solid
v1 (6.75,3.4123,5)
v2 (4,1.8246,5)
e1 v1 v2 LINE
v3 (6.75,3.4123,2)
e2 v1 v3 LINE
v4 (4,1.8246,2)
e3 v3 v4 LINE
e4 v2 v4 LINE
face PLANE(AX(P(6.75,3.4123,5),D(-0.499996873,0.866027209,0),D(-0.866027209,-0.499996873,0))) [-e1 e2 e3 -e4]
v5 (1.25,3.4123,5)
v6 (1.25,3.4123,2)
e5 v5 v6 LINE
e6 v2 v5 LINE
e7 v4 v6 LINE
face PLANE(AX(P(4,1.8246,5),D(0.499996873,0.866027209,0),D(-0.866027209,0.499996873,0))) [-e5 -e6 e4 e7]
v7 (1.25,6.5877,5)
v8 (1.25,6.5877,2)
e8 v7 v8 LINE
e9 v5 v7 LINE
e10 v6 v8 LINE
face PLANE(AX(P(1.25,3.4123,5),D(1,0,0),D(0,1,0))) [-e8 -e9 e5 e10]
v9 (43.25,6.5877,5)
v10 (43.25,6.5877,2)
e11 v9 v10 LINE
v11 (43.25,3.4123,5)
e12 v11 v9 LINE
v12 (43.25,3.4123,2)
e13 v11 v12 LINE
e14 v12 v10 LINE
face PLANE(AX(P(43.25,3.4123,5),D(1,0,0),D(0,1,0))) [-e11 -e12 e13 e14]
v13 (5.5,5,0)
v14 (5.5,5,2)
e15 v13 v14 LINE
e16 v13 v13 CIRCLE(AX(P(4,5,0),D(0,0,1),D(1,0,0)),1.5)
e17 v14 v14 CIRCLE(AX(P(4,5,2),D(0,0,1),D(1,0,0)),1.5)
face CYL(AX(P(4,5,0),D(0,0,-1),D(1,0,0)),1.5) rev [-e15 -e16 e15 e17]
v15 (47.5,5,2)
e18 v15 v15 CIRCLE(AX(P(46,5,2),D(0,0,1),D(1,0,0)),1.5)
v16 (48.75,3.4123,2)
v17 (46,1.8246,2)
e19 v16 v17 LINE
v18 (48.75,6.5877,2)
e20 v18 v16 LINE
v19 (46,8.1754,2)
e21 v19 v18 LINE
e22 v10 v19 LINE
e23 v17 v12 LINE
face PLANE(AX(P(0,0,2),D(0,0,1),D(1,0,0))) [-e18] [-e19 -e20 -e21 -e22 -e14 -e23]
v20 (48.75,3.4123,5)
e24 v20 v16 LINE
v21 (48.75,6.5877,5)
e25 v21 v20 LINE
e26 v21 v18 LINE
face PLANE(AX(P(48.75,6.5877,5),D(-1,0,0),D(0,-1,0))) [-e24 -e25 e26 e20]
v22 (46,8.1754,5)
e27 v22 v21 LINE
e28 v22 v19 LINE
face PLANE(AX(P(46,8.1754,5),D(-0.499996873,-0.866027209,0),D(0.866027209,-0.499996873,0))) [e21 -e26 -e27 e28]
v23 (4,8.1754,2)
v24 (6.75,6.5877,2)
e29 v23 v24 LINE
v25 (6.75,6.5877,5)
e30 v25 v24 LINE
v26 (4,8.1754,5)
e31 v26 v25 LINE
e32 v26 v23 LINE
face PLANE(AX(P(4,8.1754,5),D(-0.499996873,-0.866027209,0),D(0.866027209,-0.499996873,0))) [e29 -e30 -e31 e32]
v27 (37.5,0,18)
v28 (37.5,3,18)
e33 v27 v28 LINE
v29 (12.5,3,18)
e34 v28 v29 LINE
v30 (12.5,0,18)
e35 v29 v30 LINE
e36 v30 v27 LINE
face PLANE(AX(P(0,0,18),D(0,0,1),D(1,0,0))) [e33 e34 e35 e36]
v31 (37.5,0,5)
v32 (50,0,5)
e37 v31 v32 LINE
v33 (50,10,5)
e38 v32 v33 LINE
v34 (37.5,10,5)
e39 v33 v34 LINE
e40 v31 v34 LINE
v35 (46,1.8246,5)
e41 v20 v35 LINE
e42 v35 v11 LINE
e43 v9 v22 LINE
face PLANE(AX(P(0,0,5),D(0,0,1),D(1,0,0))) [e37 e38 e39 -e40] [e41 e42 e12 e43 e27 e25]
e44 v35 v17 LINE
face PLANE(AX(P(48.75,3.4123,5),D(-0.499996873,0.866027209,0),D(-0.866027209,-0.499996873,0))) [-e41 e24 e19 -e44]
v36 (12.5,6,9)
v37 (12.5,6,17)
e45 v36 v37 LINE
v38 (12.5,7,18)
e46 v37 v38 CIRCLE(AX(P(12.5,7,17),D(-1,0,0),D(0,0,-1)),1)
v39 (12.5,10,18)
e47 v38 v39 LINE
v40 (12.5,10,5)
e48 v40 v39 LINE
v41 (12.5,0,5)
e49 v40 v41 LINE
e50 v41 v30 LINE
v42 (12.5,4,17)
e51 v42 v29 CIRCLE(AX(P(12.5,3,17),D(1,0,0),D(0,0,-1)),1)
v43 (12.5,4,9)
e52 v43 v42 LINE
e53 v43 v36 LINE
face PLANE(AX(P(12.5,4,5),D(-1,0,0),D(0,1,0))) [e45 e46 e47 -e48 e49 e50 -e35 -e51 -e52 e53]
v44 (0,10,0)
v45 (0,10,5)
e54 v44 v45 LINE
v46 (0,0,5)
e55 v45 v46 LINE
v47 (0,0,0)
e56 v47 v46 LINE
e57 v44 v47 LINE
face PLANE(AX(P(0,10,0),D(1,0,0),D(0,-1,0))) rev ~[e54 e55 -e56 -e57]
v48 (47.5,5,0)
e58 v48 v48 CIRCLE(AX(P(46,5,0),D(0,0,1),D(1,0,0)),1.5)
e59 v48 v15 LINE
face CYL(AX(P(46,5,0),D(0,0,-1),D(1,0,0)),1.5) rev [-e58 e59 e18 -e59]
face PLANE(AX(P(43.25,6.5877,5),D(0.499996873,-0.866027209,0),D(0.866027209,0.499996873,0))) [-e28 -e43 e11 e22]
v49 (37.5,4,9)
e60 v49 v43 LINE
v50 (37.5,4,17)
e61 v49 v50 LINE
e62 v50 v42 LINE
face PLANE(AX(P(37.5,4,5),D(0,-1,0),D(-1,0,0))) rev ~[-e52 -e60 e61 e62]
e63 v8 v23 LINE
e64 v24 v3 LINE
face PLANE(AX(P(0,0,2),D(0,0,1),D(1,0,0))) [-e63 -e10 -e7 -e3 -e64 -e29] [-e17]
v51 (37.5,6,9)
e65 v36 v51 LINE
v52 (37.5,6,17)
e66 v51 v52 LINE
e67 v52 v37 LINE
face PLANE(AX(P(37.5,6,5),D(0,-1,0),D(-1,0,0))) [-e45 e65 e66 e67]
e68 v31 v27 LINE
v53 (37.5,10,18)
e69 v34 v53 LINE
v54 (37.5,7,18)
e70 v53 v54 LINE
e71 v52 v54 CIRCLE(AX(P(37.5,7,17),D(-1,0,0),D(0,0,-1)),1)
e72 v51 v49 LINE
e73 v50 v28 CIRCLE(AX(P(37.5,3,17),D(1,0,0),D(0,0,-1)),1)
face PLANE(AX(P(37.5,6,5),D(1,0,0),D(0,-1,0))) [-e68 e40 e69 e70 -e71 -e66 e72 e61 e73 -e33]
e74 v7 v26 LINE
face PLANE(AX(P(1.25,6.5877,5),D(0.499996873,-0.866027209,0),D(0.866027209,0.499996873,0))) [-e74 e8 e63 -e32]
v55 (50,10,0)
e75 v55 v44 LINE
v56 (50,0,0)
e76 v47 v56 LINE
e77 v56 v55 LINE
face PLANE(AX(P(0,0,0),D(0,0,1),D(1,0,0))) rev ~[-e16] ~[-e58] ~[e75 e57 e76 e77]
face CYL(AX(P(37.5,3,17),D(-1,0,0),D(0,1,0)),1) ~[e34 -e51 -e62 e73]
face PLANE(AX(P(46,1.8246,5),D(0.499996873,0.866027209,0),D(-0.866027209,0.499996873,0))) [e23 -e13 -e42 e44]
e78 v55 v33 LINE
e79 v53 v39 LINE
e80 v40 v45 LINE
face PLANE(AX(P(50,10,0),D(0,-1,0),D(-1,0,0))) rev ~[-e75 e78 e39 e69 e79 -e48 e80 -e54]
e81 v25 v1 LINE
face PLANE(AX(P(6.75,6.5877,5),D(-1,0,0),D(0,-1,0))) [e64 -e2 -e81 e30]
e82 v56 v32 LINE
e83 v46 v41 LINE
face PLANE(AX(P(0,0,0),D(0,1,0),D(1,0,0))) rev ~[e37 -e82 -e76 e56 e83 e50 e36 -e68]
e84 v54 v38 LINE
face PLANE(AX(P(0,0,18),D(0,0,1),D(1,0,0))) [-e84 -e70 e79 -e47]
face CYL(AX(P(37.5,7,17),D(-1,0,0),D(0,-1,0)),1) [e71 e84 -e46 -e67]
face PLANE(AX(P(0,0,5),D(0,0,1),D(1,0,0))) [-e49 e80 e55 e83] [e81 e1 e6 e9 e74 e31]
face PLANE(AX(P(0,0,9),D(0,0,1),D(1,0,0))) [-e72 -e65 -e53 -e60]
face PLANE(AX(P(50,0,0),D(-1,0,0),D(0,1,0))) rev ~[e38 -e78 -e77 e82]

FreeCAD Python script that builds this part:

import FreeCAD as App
import Part
import Sketcher
Q = App.Units.Quantity


def edges_at(feature, points):
    """Names of the edges that pass closest to the given points."""
    edges = feature.Shape.Edges
    near = lambda p: min(range(len(edges)), key=lambda i: edges[i].distToShape(Part.Vertex(*p))[0])
    return sorted({f"Edge{near(p) + 1}" for p in points})

doc = App.newDocument("Part")
params = doc.addObject("Spreadsheet::Sheet", "Params")
for row, (alias, value) in enumerate([
    ("sketch1_diameter", "3 mm"),
    ("sketch1_width", "50 mm"),
    ("sketch1_height", "10 mm"),
    ("pad1_length", "5 mm"),
    ("sketch2_width", "25 mm"),
    ("sketch2_height", "4 mm"),
    ("pad2_length", "13 mm"),
    ("fillet_radius", "1 mm"),
    ("sketch3_diameter", "3 mm"),
    ("pocket1_length", "3 mm"),
    ("sketch4_width", "25 mm"),
    ("sketch4_height", "2 mm"),
    ("pad3_length", "4 mm"),
], start=1):
    params.set(f"A{row}", alias)
    params.set(f"B{row}", "=" + value)
    params.setAlias(f"B{row}", alias)

body = doc.addObject("PartDesign::Body", "Body")

# Sketch on XY plane
sketch1 = body.newObject("Sketcher::SketchObject", "Sketch")
sketch1.AttachmentSupport = (doc.getObject("XY_Plane"), [""])
sketch1.MapMode = "FlatFace"
sketch1.addGeometry([
    Part.LineSegment(App.Vector(0, 10, 0), App.Vector(0, 0, 0)),  # 0
    Part.LineSegment(App.Vector(0, 0, 0), App.Vector(50, 0, 0)),  # 1
    Part.LineSegment(App.Vector(50, 0, 0), App.Vector(50, 10, 0)),  # 2
    Part.LineSegment(App.Vector(50, 10, 0), App.Vector(0, 10, 0)),  # 3
    Part.Circle(App.Vector(4, 5, 0), App.Vector(0, 0, 1), 1.5),  # 4
    Part.Circle(App.Vector(46, 5, 0), App.Vector(0, 0, 1), 1.5),  # 5
], False)
sketch1.addConstraint([
    Sketcher.Constraint("Coincident", 0, 2, 1, 1),
    Sketcher.Constraint("Coincident", 1, 2, 2, 1),
    Sketcher.Constraint("Coincident", 2, 2, 3, 1),
    Sketcher.Constraint("Coincident", 3, 2, 0, 1),
    Sketcher.Constraint("Vertical", 0),
    Sketcher.Constraint("Horizontal", 1),
    Sketcher.Constraint("Vertical", 2),
    Sketcher.Constraint("Horizontal", 3),
    Sketcher.Constraint("Coincident", 0, 2, -1, 1),
    Sketcher.Constraint("Equal", 4, 5),
    Sketcher.Constraint("Horizontal", 4, 3, 5, 3),
    Sketcher.Constraint("Diameter", 4, 3.0),
    Sketcher.Constraint("DistanceX", 1, 1, 1, 2, 50.0),
    Sketcher.Constraint("DistanceY", 0, 2, 0, 1, 10.0),
    Sketcher.Constraint("DistanceX", -1, 1, 4, 3, 4.0),
    Sketcher.Constraint("DistanceX", 5, 3, 1, 2, 4.0),
    Sketcher.Constraint("DistanceY", -1, 1, 4, 3, 5.0),
])
sketch1.setExpression("Constraints[11]", "Params.sketch1_diameter")
sketch1.setExpression("Constraints[12]", "Params.sketch1_width")
sketch1.setExpression("Constraints[13]", "Params.sketch1_height")
pad1 = body.newObject("PartDesign::Pad", "Pad")
pad1.Profile = sketch1
pad1.setExpression("Length", "Params.pad1_length")

# Sketch on XY plane
sketch2 = body.newObject("Sketcher::SketchObject", "Sketch001")
sketch2.AttachmentSupport = (doc.getObject("XY_Plane"), [""])
sketch2.MapMode = "FlatFace"
sketch2.AttachmentOffset = App.Placement(App.Vector(0, 0, 5), App.Rotation())
sketch2.addGeometry([
    Part.LineSegment(App.Vector(37.5, 6, 0), App.Vector(37.5, 10, 0)),  # 0
    Part.LineSegment(App.Vector(37.5, 10, 0), App.Vector(12.5, 10, 0)),  # 1
    Part.LineSegment(App.Vector(12.5, 10, 0), App.Vector(12.5, 6, 0)),  # 2
    Part.LineSegment(App.Vector(12.5, 6, 0), App.Vector(37.5, 6, 0)),  # 3
    Part.LineSegment(App.Vector(12.5, 4, 0), App.Vector(12.5, 0, 0)),  # 4
    Part.LineSegment(App.Vector(12.5, 0, 0), App.Vector(37.5, 0, 0)),  # 5
    Part.LineSegment(App.Vector(37.5, 0, 0), App.Vector(37.5, 4, 0)),  # 6
    Part.LineSegment(App.Vector(37.5, 4, 0), App.Vector(12.5, 4, 0)),  # 7
], False)
sketch2.addConstraint([
    Sketcher.Constraint("Coincident", 0, 2, 1, 1),
    Sketcher.Constraint("Coincident", 1, 2, 2, 1),
    Sketcher.Constraint("Coincident", 2, 2, 3, 1),
    Sketcher.Constraint("Coincident", 3, 2, 0, 1),
    Sketcher.Constraint("Coincident", 4, 2, 5, 1),
    Sketcher.Constraint("Coincident", 5, 2, 6, 1),
    Sketcher.Constraint("Coincident", 6, 2, 7, 1),
    Sketcher.Constraint("Coincident", 7, 2, 4, 1),
    Sketcher.Constraint("Vertical", 0),
    Sketcher.Constraint("Horizontal", 1),
    Sketcher.Constraint("Vertical", 2),
    Sketcher.Constraint("Horizontal", 3),
    Sketcher.Constraint("Vertical", 4),
    Sketcher.Constraint("Horizontal", 5),
    Sketcher.Constraint("Vertical", 6),
    Sketcher.Constraint("Horizontal", 7),
    Sketcher.Constraint("PointOnObject", 4, 2, -1),
    Sketcher.Constraint("Vertical", 2, 2, 4, 2),
    Sketcher.Constraint("Vertical", 3, 2, 5, 2),
    Sketcher.Constraint("Equal", 2, 4),
    Sketcher.Constraint("DistanceX", 1, 2, 1, 1, 25.0),
    Sketcher.Constraint("DistanceY", 0, 1, 0, 2, 4.0),
    Sketcher.Constraint("DistanceY", 6, 2, 3, 2, 2.0),
    Sketcher.Constraint("DistanceX", -1, 1, 0, 2, 37.5),
])
sketch2.setExpression("Constraints[20]", "Params.sketch2_width")
sketch2.setExpression("Constraints[21]", "Params.sketch2_height")
pad2 = body.newObject("PartDesign::Pad", "Pad001")
pad2.Profile = sketch2
pad2.setExpression("Length", "Params.pad2_length")
doc.recompute()

fillet = body.newObject("PartDesign::Fillet", "Fillet")
fillet.Base = (pad2, edges_at(pad2, [(25, 6, 18), (25, 4, 18)]))
fillet.setExpression("Radius", "Params.fillet_radius")

# Sketch on XY plane
sketch3 = body.newObject("Sketcher::SketchObject", "Sketch002")
sketch3.AttachmentSupport = (doc.getObject("XY_Plane"), [""])
sketch3.MapMode = "FlatFace"
sketch3.AttachmentOffset = App.Placement(App.Vector(0, 0, 5), App.Rotation())
sketch3.addGeometry([
    Part.LineSegment(App.Vector(6.75, 3.4123, 0), App.Vector(6.75, 6.5877, 0)),  # 0
    Part.LineSegment(App.Vector(6.75, 6.5877, 0), App.Vector(4, 8.1754, 0)),  # 1
    Part.LineSegment(App.Vector(4, 8.1754, 0), App.Vector(1.25, 6.5877, 0)),  # 2
    Part.LineSegment(App.Vector(1.25, 6.5877, 0), App.Vector(1.25, 3.4123, 0)),  # 3
    Part.LineSegment(App.Vector(1.25, 3.4123, 0), App.Vector(4, 1.8246, 0)),  # 4
    Part.LineSegment(App.Vector(4, 1.8246, 0), App.Vector(6.75, 3.4123, 0)),  # 5
    Part.Circle(App.Vector(4, 5, 0), App.Vector(0, 0, 1), 1.5),  # 6
    Part.LineSegment(App.Vector(46, 8.1754, 0), App.Vector(43.25, 6.5877, 0)),  # 7
    Part.LineSegment(App.Vector(43.25, 6.5877, 0), App.Vector(43.25, 3.4123, 0)),  # 8
    Part.LineSegment(App.Vector(43.25, 3.4123, 0), App.Vector(46, 1.8246, 0)),  # 9
    Part.LineSegment(App.Vector(46, 1.8246, 0), App.Vector(48.75, 3.4123, 0)),  # 10
    Part.LineSegment(App.Vector(48.75, 3.4123, 0), App.Vector(48.75, 6.5877, 0)),  # 11
    Part.LineSegment(App.Vector(48.75, 6.5877, 0), App.Vector(46, 8.1754, 0)),  # 12
    Part.Circle(App.Vector(46, 5, 0), App.Vector(0, 0, 1), 1.5),  # 13
], False)
sketch3.addConstraint([
    Sketcher.Constraint("Coincident", 0, 2, 1, 1),
    Sketcher.Constraint("Coincident", 1, 2, 2, 1),
    Sketcher.Constraint("Coincident", 2, 2, 3, 1),
    Sketcher.Constraint("Coincident", 3, 2, 4, 1),
    Sketcher.Constraint("Coincident", 4, 2, 5, 1),
    Sketcher.Constraint("Coincident", 5, 2, 0, 1),
    Sketcher.Constraint("Coincident", 7, 2, 8, 1),
    Sketcher.Constraint("Coincident", 8, 2, 9, 1),
    Sketcher.Constraint("Coincident", 9, 2, 10, 1),
    Sketcher.Constraint("Coincident", 10, 2, 11, 1),
    Sketcher.Constraint("Coincident", 11, 2, 12, 1),
    Sketcher.Constraint("Coincident", 12, 2, 7, 1),
    Sketcher.Constraint("Vertical", 0),
    Sketcher.Constraint("Vertical", 3),
    Sketcher.Constraint("Vertical", 8),
    Sketcher.Constraint("Vertical", 11),
    Sketcher.Constraint("Equal", 6, 13),
    Sketcher.Constraint("Parallel", 1, 4),
    Sketcher.Constraint("Parallel", 2, 5),
    Sketcher.Constraint("Parallel", 5, 7),
    Sketcher.Constraint("Parallel", 4, 9),
    Sketcher.Constraint("Parallel", 7, 10),
    Sketcher.Constraint("Parallel", 9, 12),
    Sketcher.Constraint("Horizontal", 6, 3, 13, 3),
    Sketcher.Constraint("Horizontal", 0, 2, 2, 2),
    Sketcher.Constraint("Horizontal", 3, 2, 5, 2),
    Sketcher.Constraint("Horizontal", 2, 2, 7, 2),
    Sketcher.Constraint("Horizontal", 5, 2, 8, 2),
    Sketcher.Constraint("Horizontal", 4, 2, 9, 2),
    Sketcher.Constraint("Horizontal", 8, 2, 10, 2),
    Sketcher.Constraint("Horizontal", 7, 2, 11, 2),
    Sketcher.Constraint("Vertical", 6, 3, 1, 2),
    Sketcher.Constraint("Vertical", 1, 2, 4, 2),
    Sketcher.Constraint("Vertical", 13, 3, 9, 2),
    Sketcher.Constraint("Diameter", 6, 3.0),
    Sketcher.Constraint("DistanceX", 2, 2, 0, 2, 5.5),
    Sketcher.Constraint("Angle", 1, Q("150.0002 deg")),
    Sketcher.Constraint("DistanceX", -1, 1, 6, 3, 4.0),
    Sketcher.Constraint("DistanceY", -1, 1, 6, 3, 5.0),
    Sketcher.Constraint("DistanceX", -1, 1, 13, 3, 46.0),
    Sketcher.Constraint("DistanceY", 0, 1, 0, 2, 3.1754),
    Sketcher.Constraint("DistanceY", -1, 1, 0, 2, 6.5877),
])
sketch3.setExpression("Constraints[34]", "Params.sketch3_diameter")
pocket1 = body.newObject("PartDesign::Pocket", "Pocket")
pocket1.Profile = sketch3
pocket1.setExpression("Length", "Params.pocket1_length")

# Sketch on XY plane
sketch4 = body.newObject("Sketcher::SketchObject", "Sketch003")
sketch4.AttachmentSupport = (doc.getObject("XY_Plane"), [""])
sketch4.MapMode = "FlatFace"
sketch4.AttachmentOffset = App.Placement(App.Vector(0, 0, 5), App.Rotation())
sketch4.addGeometry([
    Part.LineSegment(App.Vector(37.5, 6, 0), App.Vector(12.5, 6, 0)),
    Part.LineSegment(App.Vector(12.5, 6, 0), App.Vector(12.5, 4, 0)),
    Part.LineSegment(App.Vector(12.5, 4, 0), App.Vector(37.5, 4, 0)),
    Part.LineSegment(App.Vector(37.5, 4, 0), App.Vector(37.5, 6, 0)),
], False)
sketch4.addConstraint([
    Sketcher.Constraint("Coincident", 0, 2, 1, 1),
    Sketcher.Constraint("Coincident", 1, 2, 2, 1),
    Sketcher.Constraint("Coincident", 2, 2, 3, 1),
    Sketcher.Constraint("Coincident", 3, 2, 0, 1),
    Sketcher.Constraint("Horizontal", 0),
    Sketcher.Constraint("Vertical", 1),
    Sketcher.Constraint("Horizontal", 2),
    Sketcher.Constraint("Vertical", 3),
    Sketcher.Constraint("DistanceX", 0, 2, 0, 1, 25.0),
    Sketcher.Constraint("DistanceY", 1, 2, 1, 1, 2.0),
    Sketcher.Constraint("DistanceY", -1, 1, 0, 2, 6.0),
    Sketcher.Constraint("DistanceX", -1, 1, 0, 2, 12.5),
])
sketch4.setExpression("Constraints[8]", "Params.sketch4_width")
sketch4.setExpression("Constraints[9]", "Params.sketch4_height")
pad3 = body.newObject("PartDesign::Pad", "Pad002")
pad3.Profile = sketch4
pad3.setExpression("Length", "Params.pad3_length")

doc.recompute()
